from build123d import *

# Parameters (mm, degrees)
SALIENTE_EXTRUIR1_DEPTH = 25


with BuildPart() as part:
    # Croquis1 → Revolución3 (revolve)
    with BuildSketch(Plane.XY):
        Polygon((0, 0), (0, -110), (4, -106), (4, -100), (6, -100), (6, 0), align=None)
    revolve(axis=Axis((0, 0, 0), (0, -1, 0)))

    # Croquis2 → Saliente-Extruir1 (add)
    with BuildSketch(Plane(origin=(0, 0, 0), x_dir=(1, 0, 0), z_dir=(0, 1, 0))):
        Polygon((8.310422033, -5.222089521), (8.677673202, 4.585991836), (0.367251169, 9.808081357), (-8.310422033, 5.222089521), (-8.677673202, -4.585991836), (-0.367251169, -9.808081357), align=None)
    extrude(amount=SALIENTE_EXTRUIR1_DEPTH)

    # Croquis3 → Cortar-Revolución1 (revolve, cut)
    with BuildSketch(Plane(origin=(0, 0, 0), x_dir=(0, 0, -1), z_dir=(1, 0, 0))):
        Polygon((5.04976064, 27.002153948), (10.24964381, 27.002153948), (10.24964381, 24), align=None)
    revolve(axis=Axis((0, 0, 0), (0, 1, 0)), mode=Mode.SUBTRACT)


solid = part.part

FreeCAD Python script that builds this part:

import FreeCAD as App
import Part
import Sketcher
Q = App.Units.Quantity


def add_polygon(sketch, points):
    """Adds a closed chain of lines whose ends are joined by coincident constraints."""
    first, n = sketch.GeometryCount, len(points)
    for a, b in zip(points, points[1:] + points[:1]):
        sketch.addGeometry(Part.LineSegment(App.Vector(*a, 0), App.Vector(*b, 0)), False)
    for i in range(n):
        sketch.addConstraint(Sketcher.Constraint("Coincident", first + i, 2, first + (i + 1) % n, 1))

doc = App.newDocument("Part")
body = doc.addObject("PartDesign::Body", "Body")

# Sketch on XY plane
sketch1 = body.newObject("Sketcher::SketchObject", "Sketch")
sketch1.AttachmentSupport = (doc.getObject("XY_Plane"), [""])
sketch1.MapMode = "FlatFace"
add_polygon(sketch1, [(0, 0), (0, -110), (4, -106), (4, -100), (6, -100), (6, 0)])  # lines 0-5
sketch1.addConstraint([
    Sketcher.Constraint("Vertical", 0),
    Sketcher.Constraint("Vertical", 2),
    Sketcher.Constraint("Horizontal", 3),
    Sketcher.Constraint("Vertical", 4),
    Sketcher.Constraint("Horizontal", 5),
    Sketcher.Constraint("Coincident", 5, 2, -1, 1),
    Sketcher.Constraint("Equal", 5, 2),
    Sketcher.Constraint("DistanceX", 3, 1, 3, 2, 2.0),
    Sketcher.Constraint("DistanceX", 5, 2, 5, 1, 6.0),
    Sketcher.Constraint("DistanceY", 0, 2, 0, 1, 110.0),
    Sketcher.Constraint("DistanceY", 4, 1, 4, 2, 100.0),
])
revolution = body.newObject("PartDesign::Revolution", "Revolution")
revolution.Profile = sketch1
revolution.ReferenceAxis = (sketch1, ["V_Axis"])
revolution.Angle = 360

# Sketch on XZ plane
sketch2 = body.newObject("Sketcher::SketchObject", "Sketch001")
sketch2.AttachmentSupport = (doc.getObject("XZ_Plane"), [""])
sketch2.MapMode = "FlatFace"
add_polygon(sketch2, [(8, 5), (9, -5), (0, -10), (-8, -5), (-9, 5), (0, 10)])  # lines 0-5
sketch2.addConstraint([
    Sketcher.Constraint("Symmetric", 0, 2, 3, 2, -1, 1),
    Sketcher.Constraint("Symmetric", 1, 2, 4, 2, -1, 1),
    Sketcher.Constraint("Symmetric", 2, 2, 5, 2, -1, 1),
    Sketcher.Constraint("Equal", 0, 1),
    Sketcher.Constraint("Equal", 1, 2),
    Sketcher.Constraint("DistanceY", 0, 2, -1, 1, 4.585992),
    Sketcher.Constraint("DistanceX", -1, 1, 1, 2, 0.367251),
    Sketcher.Constraint("DistanceY", 1, 2, -1, 1, 9.808081),
    Sketcher.Constraint("DistanceY", 2, 2, -1, 1, 5.22209),
])
pad1 = body.newObject("PartDesign::Pad", "Pad")
pad1.Profile = sketch2
pad1.Length = 25
pad1.Reversed = True

# Sketch on YZ plane
sketch3 = body.newObject("Sketcher::SketchObject", "Sketch002")
sketch3.AttachmentSupport = (doc.getObject("YZ_Plane"), [""])
sketch3.MapMode = "FlatFace"
add_polygon(sketch3, [(27, -10.2), (27, -5), (24, -10.2)])  # lines 0-2
sketch3.addConstraint([
    Sketcher.Constraint("Vertical", 0),
    Sketcher.Constraint("Horizontal", 2),
    Sketcher.Constraint("Angle", 1, Q("-120 deg")),
    Sketcher.Constraint("DistanceX", -1, 1, 1, 2, 24.0),
    Sketcher.Constraint("DistanceX", 2, 1, 2, 2, 3.002154),
    Sketcher.Constraint("DistanceY", 0, 2, -1, 1, 5.049761),
])
groove = body.newObject("PartDesign::Groove", "Groove")
groove.Profile = sketch3
groove.ReferenceAxis = (sketch3, ["H_Axis"])
groove.Angle = 360

doc.recompute()
